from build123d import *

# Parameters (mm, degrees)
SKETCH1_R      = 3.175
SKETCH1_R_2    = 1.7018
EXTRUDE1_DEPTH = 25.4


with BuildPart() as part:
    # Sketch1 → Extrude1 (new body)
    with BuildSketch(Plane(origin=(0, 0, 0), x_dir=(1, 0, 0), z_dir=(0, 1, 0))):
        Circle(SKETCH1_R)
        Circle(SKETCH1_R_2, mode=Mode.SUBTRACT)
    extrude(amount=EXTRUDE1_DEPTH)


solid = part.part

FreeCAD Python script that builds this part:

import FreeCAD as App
import Part
import Sketcher
Q = App.Units.Quantity

doc = App.newDocument("Part")
params = doc.addObject("Spreadsheet::Sheet", "Params")
for row, (alias, value) in enumerate([
    ("sketch1_diameter", "0.25 in"),
    ("sketch1_diameter2", "0.134 in"),
    ("pad1_length", "1 in"),
], start=1):
    params.set(f"A{row}", alias)
    params.set(f"B{row}", "=" + value)
    params.setAlias(f"B{row}", alias)

body = doc.addObject("PartDesign::Body", "Body")

# Sketch on XZ plane
sketch1 = doc.addObject("Sketcher::SketchObject", "Sketch")
body.addObject(sketch1)
sketch1.AttachmentSupport = (doc.XZ_Plane, [""])
sketch1.MapMode = "FlatFace"
sketch1.addGeometry([
    Part.Circle(App.Vector(0, 0, 0), App.Vector(0, 0, 1), 3.2),
    Part.Circle(App.Vector(0, 0, 0), App.Vector(0, 0, 1), 1.7),
], False)
sketch1.addConstraint([
    Sketcher.Constraint("Coincident", 0, 3, -1, 1),
    Sketcher.Constraint("Coincident", 1, 3, -1, 1),
    Sketcher.Constraint("Diameter", 0, Q("0.25 in")),
    Sketcher.Constraint("Diameter", 1, Q("0.134 in")),
])
sketch1.setExpression("Constraints[2]", "Params.sketch1_diameter")
sketch1.setExpression("Constraints[3]", "Params.sketch1_diameter2")
pad1 = doc.addObject("PartDesign::Pad", "Pad")
body.addObject(pad1)
pad1.Profile = sketch1
pad1.setExpression("Length", "Params.pad1_length")
pad1.Reversed = True

doc.recompute()
